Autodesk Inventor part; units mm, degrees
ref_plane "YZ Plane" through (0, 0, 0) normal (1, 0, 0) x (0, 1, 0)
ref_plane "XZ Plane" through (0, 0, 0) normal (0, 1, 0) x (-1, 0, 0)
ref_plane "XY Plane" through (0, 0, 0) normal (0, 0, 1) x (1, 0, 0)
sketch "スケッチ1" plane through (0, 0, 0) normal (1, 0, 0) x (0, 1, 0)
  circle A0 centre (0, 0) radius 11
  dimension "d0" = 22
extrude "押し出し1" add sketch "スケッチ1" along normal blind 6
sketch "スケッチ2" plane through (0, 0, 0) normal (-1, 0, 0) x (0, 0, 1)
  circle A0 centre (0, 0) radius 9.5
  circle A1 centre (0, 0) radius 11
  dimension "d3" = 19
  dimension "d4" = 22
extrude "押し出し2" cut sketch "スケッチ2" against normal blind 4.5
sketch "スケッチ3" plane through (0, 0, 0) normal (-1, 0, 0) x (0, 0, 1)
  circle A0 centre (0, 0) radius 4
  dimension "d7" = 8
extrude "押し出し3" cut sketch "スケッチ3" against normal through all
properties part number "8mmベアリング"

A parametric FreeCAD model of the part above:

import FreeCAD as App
import Part
import Sketcher
from FreeCAD import Vector
Q = App.Units.Quantity

doc = App.newDocument("Part")
body = doc.addObject("PartDesign::Body", "Body")

sketch1 = doc.addObject("Sketcher::SketchObject", "Sketch")
body.addObject(sketch1)
sketch1.AttachmentSupport = (doc.YZ_Plane, [""])
sketch1.MapMode = "FlatFace"
sketch1.addGeometry(Part.Circle(Vector(0, 0, 0), Vector(0, 0, 1), 11), False)
sketch1.addConstraint([
    Sketcher.Constraint("Coincident", 0, 3, -1, 1),
    Sketcher.Constraint("Diameter", 0, Q("22 mm")),
])
pad1 = doc.addObject("PartDesign::Pad", "Pad")
body.addObject(pad1)
pad1.Profile = sketch1
pad1.Length = 6

sketch2 = doc.addObject("Sketcher::SketchObject", "Sketch001")
body.addObject(sketch2)
sketch2.AttachmentSupport = (doc.YZ_Plane, [""])
sketch2.MapMode = "FlatFace"
sketch2.addGeometry([
    Part.Circle(Vector(0, 0, 0), Vector(0, 0, 1), 11),
    Part.Circle(Vector(0, 0, 0), Vector(0, 0, 1), 9.5),
], False)
sketch2.addConstraint([
    Sketcher.Constraint("Coincident", 0, 3, -1, 1),
    Sketcher.Constraint("Coincident", 1, 3, -1, 1),
    Sketcher.Constraint("Diameter", 0, Q("22 mm")),
    Sketcher.Constraint("Diameter", 1, Q("19 mm")),
])
pocket1 = doc.addObject("PartDesign::Pocket", "Pocket")
body.addObject(pocket1)
pocket1.Profile = sketch2
pocket1.Length = 4.5
pocket1.Reversed = True

sketch3 = doc.addObject("Sketcher::SketchObject", "Sketch002")
body.addObject(sketch3)
sketch3.AttachmentSupport = (doc.YZ_Plane, [""])
sketch3.MapMode = "FlatFace"
sketch3.addGeometry(Part.Circle(Vector(0, 0, 0), Vector(0, 0, 1), 4), False)
sketch3.addConstraint([
    Sketcher.Constraint("Coincident", 0, 3, -1, 1),
    Sketcher.Constraint("Diameter", 0, Q("8 mm")),
])
pocket2 = doc.addObject("PartDesign::Pocket", "Pocket001")
body.addObject(pocket2)
pocket2.Profile = sketch3
pocket2.Type = "ThroughAll"
pocket2.Reversed = True

doc.recompute()
